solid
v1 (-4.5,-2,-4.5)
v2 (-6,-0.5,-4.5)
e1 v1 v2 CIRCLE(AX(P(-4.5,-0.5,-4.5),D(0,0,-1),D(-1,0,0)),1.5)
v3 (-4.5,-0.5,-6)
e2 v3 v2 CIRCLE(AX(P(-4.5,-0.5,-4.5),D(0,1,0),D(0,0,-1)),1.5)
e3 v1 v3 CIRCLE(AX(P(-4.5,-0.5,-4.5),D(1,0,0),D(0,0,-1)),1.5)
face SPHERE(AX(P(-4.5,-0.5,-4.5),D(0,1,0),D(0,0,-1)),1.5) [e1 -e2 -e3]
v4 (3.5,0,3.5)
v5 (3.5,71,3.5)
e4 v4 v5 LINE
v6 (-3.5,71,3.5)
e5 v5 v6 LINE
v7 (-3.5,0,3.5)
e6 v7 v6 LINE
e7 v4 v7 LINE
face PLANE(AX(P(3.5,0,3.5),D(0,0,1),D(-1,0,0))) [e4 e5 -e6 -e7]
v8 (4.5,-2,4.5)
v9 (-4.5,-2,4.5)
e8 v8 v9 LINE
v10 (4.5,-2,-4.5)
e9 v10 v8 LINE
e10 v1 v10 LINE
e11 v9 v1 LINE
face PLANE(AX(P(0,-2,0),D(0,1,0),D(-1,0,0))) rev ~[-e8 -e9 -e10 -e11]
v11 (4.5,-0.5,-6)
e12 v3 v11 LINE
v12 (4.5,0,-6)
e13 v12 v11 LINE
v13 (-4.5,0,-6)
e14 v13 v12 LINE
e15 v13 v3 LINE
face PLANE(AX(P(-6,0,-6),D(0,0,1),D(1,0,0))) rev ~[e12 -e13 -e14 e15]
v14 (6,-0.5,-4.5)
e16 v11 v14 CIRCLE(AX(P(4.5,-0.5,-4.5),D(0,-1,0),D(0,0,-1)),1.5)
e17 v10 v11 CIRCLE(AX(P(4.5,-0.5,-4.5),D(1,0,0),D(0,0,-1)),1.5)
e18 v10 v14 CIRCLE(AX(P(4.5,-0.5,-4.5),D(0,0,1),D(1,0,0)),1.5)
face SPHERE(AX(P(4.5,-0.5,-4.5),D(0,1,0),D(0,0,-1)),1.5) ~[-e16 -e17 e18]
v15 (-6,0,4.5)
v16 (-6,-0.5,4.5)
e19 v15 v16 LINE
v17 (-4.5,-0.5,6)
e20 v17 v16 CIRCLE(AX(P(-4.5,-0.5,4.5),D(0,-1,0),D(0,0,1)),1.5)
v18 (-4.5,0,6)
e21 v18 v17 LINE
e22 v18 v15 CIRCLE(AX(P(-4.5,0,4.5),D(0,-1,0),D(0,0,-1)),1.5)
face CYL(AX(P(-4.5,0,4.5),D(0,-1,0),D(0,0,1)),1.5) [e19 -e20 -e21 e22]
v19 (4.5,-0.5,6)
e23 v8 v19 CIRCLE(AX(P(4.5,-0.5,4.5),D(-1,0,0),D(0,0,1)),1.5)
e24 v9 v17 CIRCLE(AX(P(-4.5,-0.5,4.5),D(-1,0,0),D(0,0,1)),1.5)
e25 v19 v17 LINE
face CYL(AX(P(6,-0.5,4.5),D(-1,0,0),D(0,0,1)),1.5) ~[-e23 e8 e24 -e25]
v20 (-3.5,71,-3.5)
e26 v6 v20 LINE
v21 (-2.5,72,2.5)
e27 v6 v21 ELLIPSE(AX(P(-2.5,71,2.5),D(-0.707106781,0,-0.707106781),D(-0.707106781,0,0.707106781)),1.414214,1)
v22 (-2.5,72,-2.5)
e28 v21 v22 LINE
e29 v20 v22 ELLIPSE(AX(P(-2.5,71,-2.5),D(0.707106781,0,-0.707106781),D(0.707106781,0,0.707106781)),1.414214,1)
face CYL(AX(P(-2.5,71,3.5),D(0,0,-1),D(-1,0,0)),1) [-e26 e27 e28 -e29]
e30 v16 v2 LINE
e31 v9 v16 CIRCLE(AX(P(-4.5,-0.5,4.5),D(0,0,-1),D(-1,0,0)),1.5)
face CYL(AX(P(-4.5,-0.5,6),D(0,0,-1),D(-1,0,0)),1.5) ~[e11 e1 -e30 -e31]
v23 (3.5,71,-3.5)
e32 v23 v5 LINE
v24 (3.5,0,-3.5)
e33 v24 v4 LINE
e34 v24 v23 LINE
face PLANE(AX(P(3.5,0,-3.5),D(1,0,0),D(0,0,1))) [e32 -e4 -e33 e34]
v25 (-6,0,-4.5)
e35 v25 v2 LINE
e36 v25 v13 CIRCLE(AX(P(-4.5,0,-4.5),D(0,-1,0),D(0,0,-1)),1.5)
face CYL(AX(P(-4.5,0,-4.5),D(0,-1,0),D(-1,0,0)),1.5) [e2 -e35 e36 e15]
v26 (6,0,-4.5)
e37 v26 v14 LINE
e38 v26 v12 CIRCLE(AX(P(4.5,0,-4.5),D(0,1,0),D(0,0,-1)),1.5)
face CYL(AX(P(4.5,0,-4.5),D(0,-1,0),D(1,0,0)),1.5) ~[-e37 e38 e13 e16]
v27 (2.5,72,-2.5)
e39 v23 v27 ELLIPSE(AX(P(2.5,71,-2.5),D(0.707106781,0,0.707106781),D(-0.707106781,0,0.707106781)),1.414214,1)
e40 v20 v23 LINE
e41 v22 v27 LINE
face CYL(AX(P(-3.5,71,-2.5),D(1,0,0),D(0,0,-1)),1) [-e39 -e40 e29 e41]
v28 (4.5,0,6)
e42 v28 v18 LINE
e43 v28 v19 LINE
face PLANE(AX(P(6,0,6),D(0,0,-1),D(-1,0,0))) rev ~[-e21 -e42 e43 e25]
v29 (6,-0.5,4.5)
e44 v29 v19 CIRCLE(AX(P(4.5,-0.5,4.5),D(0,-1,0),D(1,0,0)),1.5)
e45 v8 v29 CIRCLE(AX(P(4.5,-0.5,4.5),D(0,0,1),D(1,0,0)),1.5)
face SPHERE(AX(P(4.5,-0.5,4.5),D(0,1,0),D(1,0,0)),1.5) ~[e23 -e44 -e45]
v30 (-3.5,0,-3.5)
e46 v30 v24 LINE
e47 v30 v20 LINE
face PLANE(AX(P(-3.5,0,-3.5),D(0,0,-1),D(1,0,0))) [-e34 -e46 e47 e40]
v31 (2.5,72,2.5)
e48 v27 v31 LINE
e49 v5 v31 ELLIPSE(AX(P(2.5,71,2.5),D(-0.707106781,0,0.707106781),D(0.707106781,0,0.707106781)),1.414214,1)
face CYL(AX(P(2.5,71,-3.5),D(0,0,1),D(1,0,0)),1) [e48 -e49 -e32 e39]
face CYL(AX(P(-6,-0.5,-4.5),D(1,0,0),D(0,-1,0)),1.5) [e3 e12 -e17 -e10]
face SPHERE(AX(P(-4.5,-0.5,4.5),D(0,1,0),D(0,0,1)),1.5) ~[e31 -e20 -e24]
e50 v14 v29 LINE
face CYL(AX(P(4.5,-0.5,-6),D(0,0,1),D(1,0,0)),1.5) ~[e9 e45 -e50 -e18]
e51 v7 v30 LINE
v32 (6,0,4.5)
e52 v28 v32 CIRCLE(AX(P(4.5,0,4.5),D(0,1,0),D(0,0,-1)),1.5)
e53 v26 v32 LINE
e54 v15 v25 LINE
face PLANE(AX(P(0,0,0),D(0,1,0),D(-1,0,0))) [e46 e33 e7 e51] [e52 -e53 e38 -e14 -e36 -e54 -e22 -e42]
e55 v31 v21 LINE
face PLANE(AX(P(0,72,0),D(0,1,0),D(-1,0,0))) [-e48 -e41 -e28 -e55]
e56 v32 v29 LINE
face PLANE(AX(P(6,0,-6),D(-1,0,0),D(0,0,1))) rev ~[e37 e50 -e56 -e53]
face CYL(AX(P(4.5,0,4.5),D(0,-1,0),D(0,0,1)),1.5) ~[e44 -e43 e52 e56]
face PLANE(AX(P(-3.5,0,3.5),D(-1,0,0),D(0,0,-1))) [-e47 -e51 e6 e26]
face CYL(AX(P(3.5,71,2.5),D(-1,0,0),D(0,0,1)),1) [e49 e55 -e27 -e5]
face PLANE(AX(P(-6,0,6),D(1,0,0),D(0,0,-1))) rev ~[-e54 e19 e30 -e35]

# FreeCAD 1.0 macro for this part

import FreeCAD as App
import Part
import Sketcher
from FreeCAD import Vector


def edges_at(feature, points):
    """Names of the edges that pass closest to the given points."""
    edges = feature.Shape.Edges
    near = lambda p: min(range(len(edges)), key=lambda i: edges[i].distToShape(Part.Vertex(*p))[0])
    return sorted({f"Edge{near(p) + 1}" for p in points})

doc = App.newDocument("Part")
body = doc.addObject("PartDesign::Body", "Body")

sketch1 = doc.addObject("Sketcher::SketchObject", "Sketch")
body.addObject(sketch1)
sketch1.AttachmentSupport = (doc.XZ_Plane, [""])
sketch1.MapMode = "FlatFace"
sketch1.addGeometry(Part.LineSegment(Vector(-3.5, 3.5, 0), Vector(3.5, 3.5, 0)), False)
sketch1.addGeometry(Part.LineSegment(Vector(3.5, 3.5, 0), Vector(3.5, -3.5, 0)), False)
sketch1.addGeometry(Part.LineSegment(Vector(3.5, -3.5, 0), Vector(-3.5, -3.5, 0)), False)
sketch1.addGeometry(Part.LineSegment(Vector(-3.5, -3.5, 0), Vector(-3.5, 3.5, 0)), False)
sketch1.addConstraint(Sketcher.Constraint("Coincident", 0, 2, 1, 1))
sketch1.addConstraint(Sketcher.Constraint("Coincident", 1, 2, 2, 1))
sketch1.addConstraint(Sketcher.Constraint("Coincident", 2, 2, 3, 1))
sketch1.addConstraint(Sketcher.Constraint("Coincident", 3, 2, 0, 1))
sketch1.addConstraint(Sketcher.Constraint("Horizontal", 0))
sketch1.addConstraint(Sketcher.Constraint("Vertical", 1))
sketch1.addConstraint(Sketcher.Constraint("Horizontal", 2))
sketch1.addConstraint(Sketcher.Constraint("Vertical", 3))
sketch1.addConstraint(Sketcher.Constraint("Symmetric", 0, 2, 2, 2, -1, 1))
sketch1.addConstraint(Sketcher.Constraint("Equal", 2, 1))
sketch1.addConstraint(Sketcher.Constraint("DistanceX", 0, 1, 0, 2, 7.0))
pad1 = doc.addObject("PartDesign::Pad", "Pad")
body.addObject(pad1)
pad1.Profile = sketch1
pad1.Length = 72
pad1.Reversed = True

sketch2 = doc.addObject("Sketcher::SketchObject", "Sketch001")
body.addObject(sketch2)
sketch2.AttachmentSupport = (doc.XZ_Plane, [""])
sketch2.MapMode = "FlatFace"
sketch2.addGeometry(Part.LineSegment(Vector(-6, 6, 0), Vector(6, 6, 0)), False)
sketch2.addGeometry(Part.LineSegment(Vector(6, 6, 0), Vector(6, -6, 0)), False)
sketch2.addGeometry(Part.LineSegment(Vector(6, -6, 0), Vector(-6, -6, 0)), False)
sketch2.addGeometry(Part.LineSegment(Vector(-6, -6, 0), Vector(-6, 6, 0)), False)
sketch2.addConstraint(Sketcher.Constraint("Coincident", 0, 2, 1, 1))
sketch2.addConstraint(Sketcher.Constraint("Coincident", 1, 2, 2, 1))
sketch2.addConstraint(Sketcher.Constraint("Coincident", 2, 2, 3, 1))
sketch2.addConstraint(Sketcher.Constraint("Coincident", 3, 2, 0, 1))
sketch2.addConstraint(Sketcher.Constraint("Horizontal", 0))
sketch2.addConstraint(Sketcher.Constraint("Vertical", 1))
sketch2.addConstraint(Sketcher.Constraint("Horizontal", 2))
sketch2.addConstraint(Sketcher.Constraint("Vertical", 3))
sketch2.addConstraint(Sketcher.Constraint("Symmetric", 0, 2, 2, 2, -1, 1))
sketch2.addConstraint(Sketcher.Constraint("Equal", 2, 1))
sketch2.addConstraint(Sketcher.Constraint("DistanceX", 0, 1, 0, 2, 12.0))
pad2 = doc.addObject("PartDesign::Pad", "Pad001")
body.addObject(pad2)
pad2.Profile = sketch2
pad2.Length = 2
doc.recompute()

fillet = doc.addObject("PartDesign::Fillet", "Fillet")
body.addObject(fillet)
fillet.Base = (pad2, edges_at(pad2, [
    (6, -1, 6),
    (6, -1, -6),
    (-6, -1, 6),
    (-6, -1, -6),
    (0, -2, -6),
    (6, -2, 0),
    (0, -2, 6),
    (-6, -2, 0),
]))
fillet.Radius = 1.5
doc.recompute()

fillet2 = doc.addObject("PartDesign::Fillet", "Fillet001")
body.addObject(fillet2)
fillet2.Base = (fillet, edges_at(fillet, [
    (3.5, 72, 0),
    (0, 72, 3.5),
    (0, 72, -3.5),
    (-3.5, 72, 0),
]))
fillet2.Radius = 1

doc.recompute()
